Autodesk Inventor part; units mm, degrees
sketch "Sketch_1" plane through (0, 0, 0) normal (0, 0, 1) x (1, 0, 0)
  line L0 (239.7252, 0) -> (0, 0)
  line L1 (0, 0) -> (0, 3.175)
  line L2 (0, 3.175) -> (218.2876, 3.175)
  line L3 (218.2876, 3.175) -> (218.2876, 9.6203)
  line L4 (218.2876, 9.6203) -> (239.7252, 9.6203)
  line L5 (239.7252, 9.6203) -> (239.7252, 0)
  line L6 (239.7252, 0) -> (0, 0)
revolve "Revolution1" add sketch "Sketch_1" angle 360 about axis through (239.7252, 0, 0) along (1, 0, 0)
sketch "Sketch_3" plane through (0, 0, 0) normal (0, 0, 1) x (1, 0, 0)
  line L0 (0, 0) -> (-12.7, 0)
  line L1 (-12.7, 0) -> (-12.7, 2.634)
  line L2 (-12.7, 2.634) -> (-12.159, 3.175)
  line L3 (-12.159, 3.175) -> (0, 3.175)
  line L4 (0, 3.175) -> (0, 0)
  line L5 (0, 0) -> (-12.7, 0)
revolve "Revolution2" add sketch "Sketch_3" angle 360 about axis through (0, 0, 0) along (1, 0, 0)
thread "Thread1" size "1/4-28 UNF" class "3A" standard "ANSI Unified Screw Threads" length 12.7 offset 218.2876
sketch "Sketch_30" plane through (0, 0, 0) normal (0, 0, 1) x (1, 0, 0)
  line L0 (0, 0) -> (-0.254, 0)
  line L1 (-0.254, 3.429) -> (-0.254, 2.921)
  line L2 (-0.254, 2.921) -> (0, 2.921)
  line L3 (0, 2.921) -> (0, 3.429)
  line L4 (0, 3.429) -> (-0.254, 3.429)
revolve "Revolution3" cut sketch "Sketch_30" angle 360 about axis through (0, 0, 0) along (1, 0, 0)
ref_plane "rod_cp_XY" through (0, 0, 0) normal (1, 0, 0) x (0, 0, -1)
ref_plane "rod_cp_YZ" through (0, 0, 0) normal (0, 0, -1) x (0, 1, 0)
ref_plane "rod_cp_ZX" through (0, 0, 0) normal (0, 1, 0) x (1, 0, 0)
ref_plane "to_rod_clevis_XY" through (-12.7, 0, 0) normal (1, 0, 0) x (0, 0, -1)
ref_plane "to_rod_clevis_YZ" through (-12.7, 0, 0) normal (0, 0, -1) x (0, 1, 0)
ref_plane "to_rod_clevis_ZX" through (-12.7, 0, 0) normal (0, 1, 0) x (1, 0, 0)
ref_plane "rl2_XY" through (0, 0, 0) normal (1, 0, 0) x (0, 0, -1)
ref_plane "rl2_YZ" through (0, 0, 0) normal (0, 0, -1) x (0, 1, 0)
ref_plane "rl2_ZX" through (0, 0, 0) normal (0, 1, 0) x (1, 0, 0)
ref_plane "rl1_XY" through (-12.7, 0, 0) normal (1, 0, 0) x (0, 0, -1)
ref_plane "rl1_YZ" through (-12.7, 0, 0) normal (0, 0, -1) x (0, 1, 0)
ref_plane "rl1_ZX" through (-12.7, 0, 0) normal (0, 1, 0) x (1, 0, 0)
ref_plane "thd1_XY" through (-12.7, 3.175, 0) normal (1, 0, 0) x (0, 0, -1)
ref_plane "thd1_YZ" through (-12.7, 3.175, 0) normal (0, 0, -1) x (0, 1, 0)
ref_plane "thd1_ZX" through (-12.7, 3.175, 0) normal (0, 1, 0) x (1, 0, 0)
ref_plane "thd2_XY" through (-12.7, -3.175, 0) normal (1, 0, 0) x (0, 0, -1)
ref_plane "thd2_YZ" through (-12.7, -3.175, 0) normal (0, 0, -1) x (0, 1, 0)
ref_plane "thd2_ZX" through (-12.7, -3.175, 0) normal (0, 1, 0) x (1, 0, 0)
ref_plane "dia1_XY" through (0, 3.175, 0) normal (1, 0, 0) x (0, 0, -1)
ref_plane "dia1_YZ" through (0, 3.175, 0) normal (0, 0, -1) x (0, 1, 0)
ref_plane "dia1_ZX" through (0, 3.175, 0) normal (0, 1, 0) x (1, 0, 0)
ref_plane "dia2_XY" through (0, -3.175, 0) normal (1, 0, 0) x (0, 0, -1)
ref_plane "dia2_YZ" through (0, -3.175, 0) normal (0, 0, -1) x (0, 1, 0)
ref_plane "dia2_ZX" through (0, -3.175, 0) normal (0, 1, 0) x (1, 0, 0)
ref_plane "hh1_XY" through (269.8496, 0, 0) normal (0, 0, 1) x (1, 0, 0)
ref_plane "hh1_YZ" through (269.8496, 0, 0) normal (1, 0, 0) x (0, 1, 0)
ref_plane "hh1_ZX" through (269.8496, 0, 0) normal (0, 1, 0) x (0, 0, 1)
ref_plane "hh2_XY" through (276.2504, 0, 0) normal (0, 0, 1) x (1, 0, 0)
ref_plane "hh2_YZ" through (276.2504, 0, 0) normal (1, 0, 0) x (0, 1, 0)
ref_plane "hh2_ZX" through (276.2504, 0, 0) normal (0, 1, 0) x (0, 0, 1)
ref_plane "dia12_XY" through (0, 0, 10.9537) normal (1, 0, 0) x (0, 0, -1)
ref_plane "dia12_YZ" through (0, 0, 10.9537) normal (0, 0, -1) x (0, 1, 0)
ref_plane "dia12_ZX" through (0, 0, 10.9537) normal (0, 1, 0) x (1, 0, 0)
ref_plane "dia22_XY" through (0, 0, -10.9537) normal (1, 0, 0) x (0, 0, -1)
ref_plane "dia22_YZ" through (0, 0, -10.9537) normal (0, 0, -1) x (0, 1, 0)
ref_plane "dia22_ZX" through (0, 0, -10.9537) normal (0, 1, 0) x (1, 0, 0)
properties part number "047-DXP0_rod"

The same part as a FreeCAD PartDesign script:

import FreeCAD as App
import Part
import Sketcher
Q = App.Units.Quantity


def add_polygon(sketch, points):
    """Adds a closed chain of lines whose ends are joined by coincident constraints."""
    first, n = sketch.GeometryCount, len(points)
    for a, b in zip(points, points[1:] + points[:1]):
        sketch.addGeometry(Part.LineSegment(App.Vector(*a, 0), App.Vector(*b, 0)), False)
    for i in range(n):
        sketch.addConstraint(Sketcher.Constraint("Coincident", first + i, 2, first + (i + 1) % n, 1))

doc = App.newDocument("Part")
body = doc.addObject("PartDesign::Body", "Body")

# Sketch on XY plane
sketch1 = doc.addObject("Sketcher::SketchObject", "Sketch")
body.addObject(sketch1)
sketch1.AttachmentSupport = (doc.XY_Plane, [""])
sketch1.MapMode = "FlatFace"
add_polygon(sketch1, [(0, 0), (239.7, 0), (239.7, 9.6), (218.3, 9.6), (218.3, 3.2), (0, 3.2)])  # lines 0-5
sketch1.addConstraint(Sketcher.Constraint("Horizontal", 0))
sketch1.addConstraint(Sketcher.Constraint("Vertical", 1))
sketch1.addConstraint(Sketcher.Constraint("Horizontal", 2))
sketch1.addConstraint(Sketcher.Constraint("Vertical", 3))
sketch1.addConstraint(Sketcher.Constraint("Horizontal", 4))
sketch1.addConstraint(Sketcher.Constraint("Vertical", 5))
sketch1.addConstraint(Sketcher.Constraint("Coincident", 5, 2, -1, 1))
sketch1.addConstraint(Sketcher.Constraint("DistanceX", 0, 1, 0, 2, Q("9.438 in")))
sketch1.addConstraint(Sketcher.Constraint("DistanceX", 2, 2, 2, 1, Q("0.844 in")))
sketch1.addConstraint(Sketcher.Constraint("DistanceY", 5, 2, 5, 1, Q("0.125 in")))
sketch1.addConstraint(Sketcher.Constraint("DistanceY", 1, 1, 1, 2, 9.6203))
revolution = doc.addObject("PartDesign::Revolution", "Revolution")
body.addObject(revolution)
revolution.Profile = sketch1
revolution.ReferenceAxis = (sketch1, ["H_Axis"])
revolution.Angle = 360

# Sketch on XY plane
sketch2 = doc.addObject("Sketcher::SketchObject", "Sketch001")
body.addObject(sketch2)
sketch2.AttachmentSupport = (doc.XY_Plane, [""])
sketch2.MapMode = "FlatFace"
add_polygon(sketch2, [(-12.7, 0), (0, 0), (0, 3.2), (-12.2, 3.2), (-12.7, 2.6)])  # lines 0-4
sketch2.addConstraint(Sketcher.Constraint("Horizontal", 0))
sketch2.addConstraint(Sketcher.Constraint("Vertical", 1))
sketch2.addConstraint(Sketcher.Constraint("Horizontal", 2))
sketch2.addConstraint(Sketcher.Constraint("Vertical", 4))
sketch2.addConstraint(Sketcher.Constraint("Coincident", 0, 2, -1, 1))
sketch2.addConstraint(Sketcher.Constraint("DistanceX", 0, 1, 0, 2, Q("0.5 in")))
sketch2.addConstraint(Sketcher.Constraint("Angle", 3, Q("-135 deg")))
sketch2.addConstraint(Sketcher.Constraint("DistanceY", 1, 1, 1, 2, Q("0.125 in")))
sketch2.addConstraint(Sketcher.Constraint("DistanceX", 2, 2, 2, 1, Q("0.4787 in")))
revolution2 = doc.addObject("PartDesign::Revolution", "Revolution001")
body.addObject(revolution2)
revolution2.Profile = sketch2
revolution2.ReferenceAxis = (sketch2, ["H_Axis"])
revolution2.Angle = 360

# Sketch on XY plane
sketch3 = doc.addObject("Sketcher::SketchObject", "Sketch002")
body.addObject(sketch3)
sketch3.AttachmentSupport = (doc.XY_Plane, [""])
sketch3.MapMode = "FlatFace"
add_polygon(sketch3, [(0, 3.43), (-0.25, 3.43), (-0.25, 2.92), (0, 2.92)])  # lines 0-3
sketch3.addConstraint(Sketcher.Constraint("Horizontal", 0))
sketch3.addConstraint(Sketcher.Constraint("Vertical", 1))
sketch3.addConstraint(Sketcher.Constraint("Horizontal", 2))
sketch3.addConstraint(Sketcher.Constraint("Vertical", 3))
sketch3.addConstraint(Sketcher.Constraint("PointOnObject", 2, 2, -2))
sketch3.addConstraint(Sketcher.Constraint("DistanceX", 0, 2, 0, 1, Q("0.01 in")))
sketch3.addConstraint(Sketcher.Constraint("DistanceY", 1, 2, 1, 1, Q("0.02 in")))
sketch3.addConstraint(Sketcher.Constraint("DistanceY", -1, 1, 0, 2, Q("0.135 in")))
groove = doc.addObject("PartDesign::Groove", "Groove")
body.addObject(groove)
groove.Profile = sketch3
groove.ReferenceAxis = (sketch3, ["H_Axis"])
groove.Angle = 360

doc.recompute()
